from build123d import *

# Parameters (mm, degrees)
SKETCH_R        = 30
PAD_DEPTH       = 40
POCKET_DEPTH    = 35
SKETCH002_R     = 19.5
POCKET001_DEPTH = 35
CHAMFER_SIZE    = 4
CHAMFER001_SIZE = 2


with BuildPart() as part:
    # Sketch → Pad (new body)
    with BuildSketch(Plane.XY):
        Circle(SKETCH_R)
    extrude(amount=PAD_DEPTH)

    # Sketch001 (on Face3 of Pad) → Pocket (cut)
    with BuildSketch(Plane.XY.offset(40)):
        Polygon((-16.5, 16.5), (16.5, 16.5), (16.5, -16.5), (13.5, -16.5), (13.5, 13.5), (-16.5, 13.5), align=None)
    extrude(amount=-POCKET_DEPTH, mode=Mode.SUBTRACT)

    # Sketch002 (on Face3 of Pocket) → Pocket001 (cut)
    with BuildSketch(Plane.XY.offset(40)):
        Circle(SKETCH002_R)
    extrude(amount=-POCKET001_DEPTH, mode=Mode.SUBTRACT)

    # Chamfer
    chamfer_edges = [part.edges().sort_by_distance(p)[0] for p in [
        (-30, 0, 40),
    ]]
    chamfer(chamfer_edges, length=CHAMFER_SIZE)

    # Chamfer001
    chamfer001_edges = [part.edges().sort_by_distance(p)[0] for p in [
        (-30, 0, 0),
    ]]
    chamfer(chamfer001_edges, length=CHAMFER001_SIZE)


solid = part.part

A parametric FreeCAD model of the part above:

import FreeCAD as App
import Part
import Sketcher
from FreeCAD import Vector


def edges_at(feature, points):
    """Names of the edges that pass closest to the given points."""
    edges = feature.Shape.Edges
    near = lambda p: min(range(len(edges)), key=lambda i: edges[i].distToShape(Part.Vertex(*p))[0])
    return sorted({f"Edge{near(p) + 1}" for p in points})


def add_polygon(sketch, points):
    """Adds a closed chain of lines whose ends are joined by coincident constraints."""
    first, n = sketch.GeometryCount, len(points)
    for a, b in zip(points, points[1:] + points[:1]):
        sketch.addGeometry(Part.LineSegment(App.Vector(*a, 0), App.Vector(*b, 0)), False)
    for i in range(n):
        sketch.addConstraint(Sketcher.Constraint("Coincident", first + i, 2, first + (i + 1) % n, 1))

doc = App.newDocument("Part")
body = doc.addObject("PartDesign::Body", "Body")

sketch1 = body.newObject("Sketcher::SketchObject", "Sketch")
sketch1.AttachmentSupport = (doc.getObject("XY_Plane"), [""])
sketch1.MapMode = "FlatFace"
sketch1.addGeometry(Part.Circle(Vector(0, 0, 0), Vector(0, 0, 1), 30), False)
sketch1.addConstraint([
    Sketcher.Constraint("Coincident", 0, 3, -1, 1),
    Sketcher.Constraint("Diameter", 0, 60.0),
])
pad1 = body.newObject("PartDesign::Pad", "Pad")
pad1.Profile = sketch1
pad1.Length = 40

sketch2 = body.newObject("Sketcher::SketchObject", "Sketch001")
sketch2.AttachmentSupport = (doc.getObject("XY_Plane"), [""])
sketch2.MapMode = "FlatFace"
sketch2.AttachmentOffset = App.Placement(Vector(0, 0, 40), App.Rotation())
add_polygon(sketch2, [(16.5, 16.5), (-16.5, 16.5), (-16.5, 13.5), (13.5, 13.5), (13.5, -16.5), (16.5, -16.5)])
sketch2.addConstraint([
    Sketcher.Constraint("Horizontal", 0),
    Sketcher.Constraint("Vertical", 1),
    Sketcher.Constraint("Horizontal", 2),
    Sketcher.Constraint("Vertical", 3),
    Sketcher.Constraint("Horizontal", 4),
    Sketcher.Constraint("Vertical", 5),
    Sketcher.Constraint("Symmetric", 0, 2, 4, 2, -1, 1),
    Sketcher.Constraint("Equal", 4, 1),
    Sketcher.Constraint("Equal", 2, 3),
    Sketcher.Constraint("DistanceX", 0, 2, 0, 1, 33.0),
    Sketcher.Constraint("DistanceX", 2, 1, 2, 2, 30.0),
])
pocket1 = body.newObject("PartDesign::Pocket", "Pocket")
pocket1.Profile = sketch2
pocket1.Length = 35

sketch3 = body.newObject("Sketcher::SketchObject", "Sketch002")
sketch3.AttachmentSupport = (doc.getObject("XY_Plane"), [""])
sketch3.MapMode = "FlatFace"
sketch3.AttachmentOffset = App.Placement(Vector(0, 0, 40), App.Rotation())
sketch3.addGeometry(Part.Circle(Vector(0, 0, 0), Vector(0, 0, 1), 19.5), False)
sketch3.addConstraint([
    Sketcher.Constraint("Coincident", 0, 3, -1, 1),
    Sketcher.Constraint("Diameter", 0, 39.0),
])
pocket2 = body.newObject("PartDesign::Pocket", "Pocket001")
pocket2.Profile = sketch3
pocket2.Length = 35
doc.recompute()

chamfer = body.newObject("PartDesign::Chamfer", "Chamfer")
chamfer.Base = (pocket2, edges_at(pocket2, [(-30, 0, 40)]))
chamfer.Size = 4
doc.recompute()

chamfer2 = body.newObject("PartDesign::Chamfer", "Chamfer001")
chamfer2.Base = (chamfer, edges_at(chamfer, [(-30, 0, 0)]))
chamfer2.Size = 2

doc.recompute()
